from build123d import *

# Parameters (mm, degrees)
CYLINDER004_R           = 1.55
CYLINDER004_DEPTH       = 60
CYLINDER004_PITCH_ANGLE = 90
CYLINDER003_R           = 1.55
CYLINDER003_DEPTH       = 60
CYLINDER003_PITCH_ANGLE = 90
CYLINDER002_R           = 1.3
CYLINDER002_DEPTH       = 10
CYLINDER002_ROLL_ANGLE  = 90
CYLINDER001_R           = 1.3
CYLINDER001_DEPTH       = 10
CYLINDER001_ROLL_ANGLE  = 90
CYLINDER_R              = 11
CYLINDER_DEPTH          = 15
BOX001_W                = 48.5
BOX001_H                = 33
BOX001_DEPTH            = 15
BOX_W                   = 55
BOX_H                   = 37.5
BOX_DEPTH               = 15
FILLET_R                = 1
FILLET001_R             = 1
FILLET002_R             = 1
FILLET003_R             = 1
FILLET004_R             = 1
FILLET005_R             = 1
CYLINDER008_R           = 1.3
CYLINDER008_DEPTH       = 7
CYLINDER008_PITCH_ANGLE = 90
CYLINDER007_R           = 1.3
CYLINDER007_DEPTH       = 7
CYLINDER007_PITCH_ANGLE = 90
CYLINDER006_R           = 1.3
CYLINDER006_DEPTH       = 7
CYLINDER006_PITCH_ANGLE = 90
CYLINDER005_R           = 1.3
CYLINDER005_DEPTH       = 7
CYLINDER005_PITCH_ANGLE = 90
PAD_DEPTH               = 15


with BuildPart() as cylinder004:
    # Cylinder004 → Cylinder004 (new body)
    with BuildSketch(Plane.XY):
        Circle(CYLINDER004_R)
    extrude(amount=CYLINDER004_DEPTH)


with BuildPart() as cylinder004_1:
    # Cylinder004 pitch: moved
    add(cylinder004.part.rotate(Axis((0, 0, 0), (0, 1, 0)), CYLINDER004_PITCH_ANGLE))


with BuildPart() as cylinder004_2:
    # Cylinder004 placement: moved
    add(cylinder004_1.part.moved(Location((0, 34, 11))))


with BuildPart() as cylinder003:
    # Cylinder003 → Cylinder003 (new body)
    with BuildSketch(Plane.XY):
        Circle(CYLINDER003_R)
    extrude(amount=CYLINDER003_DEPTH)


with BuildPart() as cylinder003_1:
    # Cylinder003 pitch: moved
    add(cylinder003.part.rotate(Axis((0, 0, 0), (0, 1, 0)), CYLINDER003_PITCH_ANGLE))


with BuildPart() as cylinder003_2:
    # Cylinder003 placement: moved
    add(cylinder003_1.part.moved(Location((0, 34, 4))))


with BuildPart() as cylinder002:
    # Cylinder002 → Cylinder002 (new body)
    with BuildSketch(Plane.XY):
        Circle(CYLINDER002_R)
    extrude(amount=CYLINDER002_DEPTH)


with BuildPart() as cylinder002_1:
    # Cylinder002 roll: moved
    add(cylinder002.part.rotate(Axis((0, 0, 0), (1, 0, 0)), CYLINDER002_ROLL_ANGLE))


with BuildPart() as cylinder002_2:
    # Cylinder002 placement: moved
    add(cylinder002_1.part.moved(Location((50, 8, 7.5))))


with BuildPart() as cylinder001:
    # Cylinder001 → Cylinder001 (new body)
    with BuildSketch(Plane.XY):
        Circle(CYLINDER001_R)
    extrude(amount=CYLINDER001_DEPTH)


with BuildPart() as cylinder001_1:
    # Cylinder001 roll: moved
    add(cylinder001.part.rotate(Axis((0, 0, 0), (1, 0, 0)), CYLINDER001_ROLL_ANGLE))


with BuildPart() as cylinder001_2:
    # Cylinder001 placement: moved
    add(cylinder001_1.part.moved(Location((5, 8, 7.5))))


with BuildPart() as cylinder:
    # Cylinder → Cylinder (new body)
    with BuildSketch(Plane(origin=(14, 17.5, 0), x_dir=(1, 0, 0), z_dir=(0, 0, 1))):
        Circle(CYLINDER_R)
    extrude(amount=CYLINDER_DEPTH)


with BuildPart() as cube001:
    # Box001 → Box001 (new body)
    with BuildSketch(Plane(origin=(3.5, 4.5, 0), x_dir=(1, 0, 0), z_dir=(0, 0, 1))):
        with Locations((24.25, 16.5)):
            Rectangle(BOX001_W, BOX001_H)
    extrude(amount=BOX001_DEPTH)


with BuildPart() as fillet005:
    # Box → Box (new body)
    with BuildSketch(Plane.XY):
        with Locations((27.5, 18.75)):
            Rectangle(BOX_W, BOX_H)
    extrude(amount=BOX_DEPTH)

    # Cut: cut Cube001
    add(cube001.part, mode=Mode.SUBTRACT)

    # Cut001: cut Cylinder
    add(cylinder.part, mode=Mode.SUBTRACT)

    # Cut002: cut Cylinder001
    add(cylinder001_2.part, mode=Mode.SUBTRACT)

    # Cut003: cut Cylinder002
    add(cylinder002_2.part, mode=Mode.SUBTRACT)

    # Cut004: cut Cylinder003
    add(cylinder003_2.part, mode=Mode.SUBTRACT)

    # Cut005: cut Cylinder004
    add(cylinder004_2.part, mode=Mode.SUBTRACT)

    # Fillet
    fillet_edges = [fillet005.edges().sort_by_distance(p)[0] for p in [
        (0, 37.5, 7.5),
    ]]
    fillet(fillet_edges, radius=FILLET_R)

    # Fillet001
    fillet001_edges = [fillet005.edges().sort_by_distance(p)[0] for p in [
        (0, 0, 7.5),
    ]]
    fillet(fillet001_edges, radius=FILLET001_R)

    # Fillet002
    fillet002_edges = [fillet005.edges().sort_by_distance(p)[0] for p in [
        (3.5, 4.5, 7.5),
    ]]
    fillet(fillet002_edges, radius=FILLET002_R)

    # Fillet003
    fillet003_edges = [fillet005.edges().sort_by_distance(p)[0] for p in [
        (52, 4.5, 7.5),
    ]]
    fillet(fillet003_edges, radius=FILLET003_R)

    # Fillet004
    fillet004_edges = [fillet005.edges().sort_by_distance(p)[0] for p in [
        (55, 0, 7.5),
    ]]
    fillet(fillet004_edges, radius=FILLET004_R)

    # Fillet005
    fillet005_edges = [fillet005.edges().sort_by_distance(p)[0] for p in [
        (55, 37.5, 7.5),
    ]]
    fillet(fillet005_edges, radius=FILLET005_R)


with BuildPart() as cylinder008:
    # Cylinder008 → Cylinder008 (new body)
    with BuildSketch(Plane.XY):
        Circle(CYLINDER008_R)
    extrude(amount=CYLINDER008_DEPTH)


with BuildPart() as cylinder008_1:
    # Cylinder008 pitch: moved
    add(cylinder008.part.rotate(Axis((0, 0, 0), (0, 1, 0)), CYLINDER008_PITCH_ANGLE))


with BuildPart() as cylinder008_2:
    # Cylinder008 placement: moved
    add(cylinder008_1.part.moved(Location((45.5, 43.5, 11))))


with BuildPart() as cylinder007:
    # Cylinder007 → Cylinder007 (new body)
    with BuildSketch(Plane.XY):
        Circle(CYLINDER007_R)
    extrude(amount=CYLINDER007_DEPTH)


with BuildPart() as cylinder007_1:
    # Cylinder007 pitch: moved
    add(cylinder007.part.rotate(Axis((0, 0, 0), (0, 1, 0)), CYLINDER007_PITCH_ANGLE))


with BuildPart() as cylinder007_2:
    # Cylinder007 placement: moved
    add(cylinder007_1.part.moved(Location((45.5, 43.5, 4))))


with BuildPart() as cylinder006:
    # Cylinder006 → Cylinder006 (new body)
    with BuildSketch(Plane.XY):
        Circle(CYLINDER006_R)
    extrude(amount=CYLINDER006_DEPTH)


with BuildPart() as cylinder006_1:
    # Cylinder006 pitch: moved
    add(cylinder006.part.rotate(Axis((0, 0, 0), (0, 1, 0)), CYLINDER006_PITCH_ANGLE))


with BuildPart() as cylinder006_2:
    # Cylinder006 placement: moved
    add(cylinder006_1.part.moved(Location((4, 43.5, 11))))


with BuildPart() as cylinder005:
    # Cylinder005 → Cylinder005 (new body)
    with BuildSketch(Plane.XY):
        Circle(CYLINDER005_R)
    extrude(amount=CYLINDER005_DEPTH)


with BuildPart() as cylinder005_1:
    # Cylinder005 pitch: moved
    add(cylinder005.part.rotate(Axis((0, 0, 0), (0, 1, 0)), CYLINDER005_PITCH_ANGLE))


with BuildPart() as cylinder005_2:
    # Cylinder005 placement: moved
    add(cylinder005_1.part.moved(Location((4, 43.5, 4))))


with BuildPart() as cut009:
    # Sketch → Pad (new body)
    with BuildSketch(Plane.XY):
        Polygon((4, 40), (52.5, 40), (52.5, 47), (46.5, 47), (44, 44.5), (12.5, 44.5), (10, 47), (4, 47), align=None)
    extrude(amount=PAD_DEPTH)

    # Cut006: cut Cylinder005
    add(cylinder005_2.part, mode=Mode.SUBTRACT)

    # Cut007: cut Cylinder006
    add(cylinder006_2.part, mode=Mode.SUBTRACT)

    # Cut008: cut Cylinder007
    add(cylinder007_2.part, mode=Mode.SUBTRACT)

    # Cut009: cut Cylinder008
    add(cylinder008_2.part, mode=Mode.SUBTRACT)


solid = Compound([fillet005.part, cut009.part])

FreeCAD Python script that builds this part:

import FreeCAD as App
import Part
import Sketcher
Q = App.Units.Quantity


def edges_at(feature, points):
    """Names of the edges that pass closest to the given points."""
    edges = feature.Shape.Edges
    near = lambda p: min(range(len(edges)), key=lambda i: edges[i].distToShape(Part.Vertex(*p))[0])
    return sorted({f"Edge{near(p) + 1}" for p in points})


def add_polygon(sketch, points):
    """Adds a closed chain of lines whose ends are joined by coincident constraints."""
    first, n = sketch.GeometryCount, len(points)
    for a, b in zip(points, points[1:] + points[:1]):
        sketch.addGeometry(Part.LineSegment(App.Vector(*a, 0), App.Vector(*b, 0)), False)
    for i in range(n):
        sketch.addConstraint(Sketcher.Constraint("Coincident", first + i, 2, first + (i + 1) % n, 1))

doc = App.newDocument("Part")
body = doc.addObject("PartDesign::Body", "Body")

# Sketch on XY plane
sketch1 = doc.addObject("Sketcher::SketchObject", "Sketch")
body.addObject(sketch1)
sketch1.AttachmentSupport = (doc.XY_Plane, [""])
sketch1.MapMode = "FlatFace"
sketch1.addGeometry(Part.Circle(App.Vector(0, 0, 0), App.Vector(0, 0, 1), 1.55), False)
sketch1.addConstraint([
    Sketcher.Constraint("Coincident", 0, 3, -1, 1),
    Sketcher.Constraint("Diameter", 0, Q("3.1 mm")),
])
pad1 = doc.addObject("PartDesign::Pad", "Pad")
body.addObject(pad1)
pad1.Profile = sketch1
pad1.Length = 60
body2 = doc.addObject("PartDesign::Body", "Body001")
doc.recompute()

body.Placement = App.Placement(App.Vector(0, 0, 0), App.Rotation(App.Vector(0, 1, 0), 90))
boolean = doc.addObject("PartDesign::Boolean", "Boolean")
body2.addObject(boolean)
boolean.Type = "Fuse"
boolean.addObjects([body])
body3 = doc.addObject("PartDesign::Body", "Body002")
doc.recompute()

body2.Placement = App.Placement(App.Vector(0, 34, 11), App.Rotation(App.Vector(0, 0, 1), 0))
boolean2 = doc.addObject("PartDesign::Boolean", "Boolean001")
body3.addObject(boolean2)
boolean2.Type = "Fuse"
boolean2.addObjects([body2])
body4 = doc.addObject("PartDesign::Body", "Body003")

# Sketch on XY plane
sketch2 = doc.addObject("Sketcher::SketchObject", "Sketch001")
body4.addObject(sketch2)
sketch2.AttachmentSupport = (doc.getObject("XY_Plane003"), [""])
sketch2.MapMode = "FlatFace"
sketch2.addGeometry(Part.Circle(App.Vector(0, 0, 0), App.Vector(0, 0, 1), 1.55), False)
sketch2.addConstraint([
    Sketcher.Constraint("Coincident", 0, 3, -1, 1),
    Sketcher.Constraint("Diameter", 0, Q("3.1 mm")),
])
pad2 = doc.addObject("PartDesign::Pad", "Pad001")
body4.addObject(pad2)
pad2.Profile = sketch2
pad2.Length = 60
body5 = doc.addObject("PartDesign::Body", "Body004")
doc.recompute()

body4.Placement = App.Placement(App.Vector(0, 0, 0), App.Rotation(App.Vector(0, 1, 0), 90))
boolean3 = doc.addObject("PartDesign::Boolean", "Boolean002")
body5.addObject(boolean3)
boolean3.Type = "Fuse"
boolean3.addObjects([body4])
body6 = doc.addObject("PartDesign::Body", "Body005")
doc.recompute()

body5.Placement = App.Placement(App.Vector(0, 34, 4), App.Rotation(App.Vector(0, 0, 1), 0))
boolean4 = doc.addObject("PartDesign::Boolean", "Boolean003")
body6.addObject(boolean4)
boolean4.Type = "Fuse"
boolean4.addObjects([body5])
body7 = doc.addObject("PartDesign::Body", "Body006")

# Sketch on XY plane
sketch3 = doc.addObject("Sketcher::SketchObject", "Sketch002")
body7.addObject(sketch3)
sketch3.AttachmentSupport = (doc.getObject("XY_Plane006"), [""])
sketch3.MapMode = "FlatFace"
sketch3.addGeometry(Part.Circle(App.Vector(0, 0, 0), App.Vector(0, 0, 1), 1.3), False)
sketch3.addConstraint([
    Sketcher.Constraint("Coincident", 0, 3, -1, 1),
    Sketcher.Constraint("Diameter", 0, Q("2.6 mm")),
])
pad3 = doc.addObject("PartDesign::Pad", "Pad002")
body7.addObject(pad3)
pad3.Profile = sketch3
pad3.Length = 10
body8 = doc.addObject("PartDesign::Body", "Body007")
doc.recompute()

body7.Placement = App.Placement(App.Vector(0, 0, 0), App.Rotation(App.Vector(1, 0, 0), 90))
boolean5 = doc.addObject("PartDesign::Boolean", "Boolean004")
body8.addObject(boolean5)
boolean5.Type = "Fuse"
boolean5.addObjects([body7])
body9 = doc.addObject("PartDesign::Body", "Body008")
doc.recompute()

body8.Placement = App.Placement(App.Vector(50, 8, 7.5), App.Rotation(App.Vector(0, 0, 1), 0))
boolean6 = doc.addObject("PartDesign::Boolean", "Boolean005")
body9.addObject(boolean6)
boolean6.Type = "Fuse"
boolean6.addObjects([body8])
body10 = doc.addObject("PartDesign::Body", "Body009")

# Sketch on XY plane
sketch4 = doc.addObject("Sketcher::SketchObject", "Sketch003")
body10.addObject(sketch4)
sketch4.AttachmentSupport = (doc.getObject("XY_Plane009"), [""])
sketch4.MapMode = "FlatFace"
sketch4.addGeometry(Part.Circle(App.Vector(0, 0, 0), App.Vector(0, 0, 1), 1.3), False)
sketch4.addConstraint([
    Sketcher.Constraint("Coincident", 0, 3, -1, 1),
    Sketcher.Constraint("Diameter", 0, Q("2.6 mm")),
])
pad4 = doc.addObject("PartDesign::Pad", "Pad003")
body10.addObject(pad4)
pad4.Profile = sketch4
pad4.Length = 10
body11 = doc.addObject("PartDesign::Body", "Body010")
doc.recompute()

body10.Placement = App.Placement(App.Vector(0, 0, 0), App.Rotation(App.Vector(1, 0, 0), 90))
boolean7 = doc.addObject("PartDesign::Boolean", "Boolean006")
body11.addObject(boolean7)
boolean7.Type = "Fuse"
boolean7.addObjects([body10])
body12 = doc.addObject("PartDesign::Body", "Body011")
doc.recompute()

body11.Placement = App.Placement(App.Vector(5, 8, 7.5), App.Rotation(App.Vector(0, 0, 1), 0))
boolean8 = doc.addObject("PartDesign::Boolean", "Boolean007")
body12.addObject(boolean8)
boolean8.Type = "Fuse"
boolean8.addObjects([body11])
body13 = doc.addObject("PartDesign::Body", "Body012")

# Sketch on XY plane
sketch5 = doc.addObject("Sketcher::SketchObject", "Sketch004")
body13.addObject(sketch5)
sketch5.AttachmentSupport = (doc.getObject("XY_Plane012"), [""])
sketch5.MapMode = "FlatFace"
sketch5.addGeometry(Part.Circle(App.Vector(14, 17.5, 0), App.Vector(0, 0, 1), 11), False)
sketch5.addConstraint([
    Sketcher.Constraint("Diameter", 0, Q("22 mm")),
    Sketcher.Constraint("DistanceX", -1, 1, 0, 3, Q("14 mm")),
    Sketcher.Constraint("DistanceY", -1, 1, 0, 3, Q("17.5 mm")),
])
pad5 = doc.addObject("PartDesign::Pad", "Pad004")
body13.addObject(pad5)
pad5.Profile = sketch5
pad5.Length = 15
body14 = doc.addObject("PartDesign::Body", "Body013")

# Sketch on XY plane
sketch6 = doc.addObject("Sketcher::SketchObject", "Sketch005")
body14.addObject(sketch6)
sketch6.AttachmentSupport = (doc.getObject("XY_Plane013"), [""])
sketch6.MapMode = "FlatFace"
add_polygon(sketch6, [(3.5, 37.5), (3.5, 4.5), (52, 4.5), (52, 37.5)])  # lines 0-3
sketch6.addConstraint([
    Sketcher.Constraint("Vertical", 0),
    Sketcher.Constraint("Horizontal", 1),
    Sketcher.Constraint("Vertical", 2),
    Sketcher.Constraint("Horizontal", 3),
    Sketcher.Constraint("DistanceY", 0, 2, 0, 1, Q("33 mm")),
    Sketcher.Constraint("DistanceX", 1, 1, 1, 2, Q("48.5 mm")),
    Sketcher.Constraint("DistanceX", -1, 1, 1, 2, Q("52 mm")),
    Sketcher.Constraint("DistanceY", -1, 1, 0, 2, Q("4.5 mm")),
])
pad6 = doc.addObject("PartDesign::Pad", "Pad005")
body14.addObject(pad6)
pad6.Profile = sketch6
pad6.Length = 15
body15 = doc.addObject("PartDesign::Body", "Body014")

# Sketch on XY plane
sketch7 = doc.addObject("Sketcher::SketchObject", "Sketch006")
body15.addObject(sketch7)
sketch7.AttachmentSupport = (doc.getObject("XY_Plane014"), [""])
sketch7.MapMode = "FlatFace"
add_polygon(sketch7, [(0, 37.5), (0, 0), (55, 0), (55, 37.5)])  # lines 0-3
sketch7.addConstraint([
    Sketcher.Constraint("Vertical", 0),
    Sketcher.Constraint("Horizontal", 1),
    Sketcher.Constraint("Vertical", 2),
    Sketcher.Constraint("Horizontal", 3),
    Sketcher.Constraint("Coincident", 0, 2, -1, 1),
    Sketcher.Constraint("DistanceX", 1, 1, 1, 2, Q("55 mm")),
    Sketcher.Constraint("DistanceY", 0, 2, 0, 1, Q("37.5 mm")),
])
pad7 = doc.addObject("PartDesign::Pad", "Pad006")
body15.addObject(pad7)
pad7.Profile = sketch7
pad7.Length = 15
doc.recompute()

boolean9 = doc.addObject("PartDesign::Boolean", "Boolean008")
body15.addObject(boolean9)
boolean9.Type = "Cut"
boolean9.addObjects([body14])
doc.recompute()

boolean10 = doc.addObject("PartDesign::Boolean", "Boolean009")
body15.addObject(boolean10)
boolean10.Type = "Cut"
boolean10.addObjects([body13])
doc.recompute()

boolean11 = doc.addObject("PartDesign::Boolean", "Boolean010")
body15.addObject(boolean11)
boolean11.Type = "Cut"
boolean11.addObjects([body12])
doc.recompute()

boolean12 = doc.addObject("PartDesign::Boolean", "Boolean011")
body15.addObject(boolean12)
boolean12.Type = "Cut"
boolean12.addObjects([body9])
doc.recompute()

boolean13 = doc.addObject("PartDesign::Boolean", "Boolean012")
body15.addObject(boolean13)
boolean13.Type = "Cut"
boolean13.addObjects([body6])
doc.recompute()

boolean14 = doc.addObject("PartDesign::Boolean", "Boolean013")
body15.addObject(boolean14)
boolean14.Type = "Cut"
boolean14.addObjects([body3])
doc.recompute()

fillet = doc.addObject("PartDesign::Fillet", "Fillet")
body15.addObject(fillet)
fillet.Base = (boolean14, edges_at(boolean14, [(0, 37.5, 7.5)]))
fillet.Radius = 1
doc.recompute()

fillet2 = doc.addObject("PartDesign::Fillet", "Fillet001")
body15.addObject(fillet2)
fillet2.Base = (fillet, edges_at(fillet, [(0, 0, 7.5)]))
fillet2.Radius = 1
doc.recompute()

fillet3 = doc.addObject("PartDesign::Fillet", "Fillet002")
body15.addObject(fillet3)
fillet3.Base = (fillet2, edges_at(fillet2, [(3.5, 4.5, 7.5)]))
fillet3.Radius = 1
doc.recompute()

fillet4 = doc.addObject("PartDesign::Fillet", "Fillet003")
body15.addObject(fillet4)
fillet4.Base = (fillet3, edges_at(fillet3, [(52, 4.5, 7.5)]))
fillet4.Radius = 1
doc.recompute()

fillet5 = doc.addObject("PartDesign::Fillet", "Fillet004")
body15.addObject(fillet5)
fillet5.Base = (fillet4, edges_at(fillet4, [(55, 0, 7.5)]))
fillet5.Radius = 1
doc.recompute()

fillet6 = doc.addObject("PartDesign::Fillet", "Fillet005")
body15.addObject(fillet6)
fillet6.Base = (fillet5, edges_at(fillet5, [(55, 37.5, 7.5)]))
fillet6.Radius = 1
body16 = doc.addObject("PartDesign::Body", "Body015")

# Sketch on XY plane
sketch8 = doc.addObject("Sketcher::SketchObject", "Sketch007")
body16.addObject(sketch8)
sketch8.AttachmentSupport = (doc.getObject("XY_Plane015"), [""])
sketch8.MapMode = "FlatFace"
sketch8.addGeometry(Part.Circle(App.Vector(0, 0, 0), App.Vector(0, 0, 1), 1.3), False)
sketch8.addConstraint([
    Sketcher.Constraint("Coincident", 0, 3, -1, 1),
    Sketcher.Constraint("Diameter", 0, Q("2.6 mm")),
])
pad8 = doc.addObject("PartDesign::Pad", "Pad007")
body16.addObject(pad8)
pad8.Profile = sketch8
pad8.Length = 7
body17 = doc.addObject("PartDesign::Body", "Body016")
doc.recompute()

body16.Placement = App.Placement(App.Vector(0, 0, 0), App.Rotation(App.Vector(0, 1, 0), 90))
boolean15 = doc.addObject("PartDesign::Boolean", "Boolean014")
body17.addObject(boolean15)
boolean15.Type = "Fuse"
boolean15.addObjects([body16])
body18 = doc.addObject("PartDesign::Body", "Body017")
doc.recompute()

body17.Placement = App.Placement(App.Vector(45.5, 43.5, 11), App.Rotation(App.Vector(0, 0, 1), 0))
boolean16 = doc.addObject("PartDesign::Boolean", "Boolean015")
body18.addObject(boolean16)
boolean16.Type = "Fuse"
boolean16.addObjects([body17])
body19 = doc.addObject("PartDesign::Body", "Body018")

# Sketch on XY plane
sketch9 = doc.addObject("Sketcher::SketchObject", "Sketch008")
body19.addObject(sketch9)
sketch9.AttachmentSupport = (doc.getObject("XY_Plane018"), [""])
sketch9.MapMode = "FlatFace"
sketch9.addGeometry(Part.Circle(App.Vector(0, 0, 0), App.Vector(0, 0, 1), 1.3), False)
sketch9.addConstraint([
    Sketcher.Constraint("Coincident", 0, 3, -1, 1),
    Sketcher.Constraint("Diameter", 0, Q("2.6 mm")),
])
pad9 = doc.addObject("PartDesign::Pad", "Pad008")
body19.addObject(pad9)
pad9.Profile = sketch9
pad9.Length = 7
body20 = doc.addObject("PartDesign::Body", "Body019")
doc.recompute()

body19.Placement = App.Placement(App.Vector(0, 0, 0), App.Rotation(App.Vector(0, 1, 0), 90))
boolean17 = doc.addObject("PartDesign::Boolean", "Boolean016")
body20.addObject(boolean17)
boolean17.Type = "Fuse"
boolean17.addObjects([body19])
body21 = doc.addObject("PartDesign::Body", "Body020")
doc.recompute()

body20.Placement = App.Placement(App.Vector(45.5, 43.5, 4), App.Rotation(App.Vector(0, 0, 1), 0))
boolean18 = doc.addObject("PartDesign::Boolean", "Boolean017")
body21.addObject(boolean18)
boolean18.Type = "Fuse"
boolean18.addObjects([body20])
body22 = doc.addObject("PartDesign::Body", "Body021")

# Sketch on XY plane
sketch10 = doc.addObject("Sketcher::SketchObject", "Sketch009")
body22.addObject(sketch10)
sketch10.AttachmentSupport = (doc.getObject("XY_Plane021"), [""])
sketch10.MapMode = "FlatFace"
sketch10.addGeometry(Part.Circle(App.Vector(0, 0, 0), App.Vector(0, 0, 1), 1.3), False)
sketch10.addConstraint([
    Sketcher.Constraint("Coincident", 0, 3, -1, 1),
    Sketcher.Constraint("Diameter", 0, Q("2.6 mm")),
])
pad10 = doc.addObject("PartDesign::Pad", "Pad009")
body22.addObject(pad10)
pad10.Profile = sketch10
pad10.Length = 7
body23 = doc.addObject("PartDesign::Body", "Body022")
doc.recompute()

body22.Placement = App.Placement(App.Vector(0, 0, 0), App.Rotation(App.Vector(0, 1, 0), 90))
boolean19 = doc.addObject("PartDesign::Boolean", "Boolean018")
body23.addObject(boolean19)
boolean19.Type = "Fuse"
boolean19.addObjects([body22])
body24 = doc.addObject("PartDesign::Body", "Body023")
doc.recompute()

body23.Placement = App.Placement(App.Vector(4, 43.5, 11), App.Rotation(App.Vector(0, 0, 1), 0))
boolean20 = doc.addObject("PartDesign::Boolean", "Boolean019")
body24.addObject(boolean20)
boolean20.Type = "Fuse"
boolean20.addObjects([body23])
body25 = doc.addObject("PartDesign::Body", "Body024")

# Sketch on XY plane
sketch11 = doc.addObject("Sketcher::SketchObject", "Sketch010")
body25.addObject(sketch11)
sketch11.AttachmentSupport = (doc.getObject("XY_Plane024"), [""])
sketch11.MapMode = "FlatFace"
sketch11.addGeometry(Part.Circle(App.Vector(0, 0, 0), App.Vector(0, 0, 1), 1.3), False)
sketch11.addConstraint([
    Sketcher.Constraint("Coincident", 0, 3, -1, 1),
    Sketcher.Constraint("Diameter", 0, Q("2.6 mm")),
])
pad11 = doc.addObject("PartDesign::Pad", "Pad010")
body25.addObject(pad11)
pad11.Profile = sketch11
pad11.Length = 7
body26 = doc.addObject("PartDesign::Body", "Body025")
doc.recompute()

body25.Placement = App.Placement(App.Vector(0, 0, 0), App.Rotation(App.Vector(0, 1, 0), 90))
boolean21 = doc.addObject("PartDesign::Boolean", "Boolean020")
body26.addObject(boolean21)
boolean21.Type = "Fuse"
boolean21.addObjects([body25])
body27 = doc.addObject("PartDesign::Body", "Body026")
doc.recompute()

body26.Placement = App.Placement(App.Vector(4, 43.5, 4), App.Rotation(App.Vector(0, 0, 1), 0))
boolean22 = doc.addObject("PartDesign::Boolean", "Boolean021")
body27.addObject(boolean22)
boolean22.Type = "Fuse"
boolean22.addObjects([body26])
body28 = doc.addObject("PartDesign::Body", "Body027")

# Sketch on XY plane
sketch12 = doc.addObject("Sketcher::SketchObject", "Sketch011")
body28.addObject(sketch12)
sketch12.AttachmentSupport = (doc.getObject("XY_Plane027"), [""])
sketch12.MapMode = "FlatFace"
add_polygon(sketch12, [(4, 40), (52.5, 40), (52.5, 47), (46.5, 47), (44, 44.5), (12.5, 44.5), (10, 47), (4, 47)])  # lines 0-7
sketch12.addConstraint([
    Sketcher.Constraint("Horizontal", 0),
    Sketcher.Constraint("Vertical", 1),
    Sketcher.Constraint("Horizontal", 2),
    Sketcher.Constraint("Horizontal", 4),
    Sketcher.Constraint("Horizontal", 6),
    Sketcher.Constraint("Vertical", 7),
    Sketcher.Constraint("Perpendicular", 3, 5),
    Sketcher.Constraint("Horizontal", 2, 2, 5, 2),
    Sketcher.Constraint("Equal", 2, 6),
    Sketcher.Constraint("Equal", 3, 5),
    Sketcher.Constraint("DistanceX", 2, 2, 2, 1, Q("6 mm")),
    Sketcher.Constraint("DistanceY", 1, 1, 1, 2, Q("7 mm")),
    Sketcher.Constraint("DistanceX", 0, 1, 0, 2, Q("48.5 mm")),
    Sketcher.Constraint("DistanceX", 4, 2, 4, 1, Q("31.5 mm")),
    Sketcher.Constraint("DistanceY", -1, 1, 0, 2, Q("40 mm")),
    Sketcher.Constraint("DistanceX", -1, 1, 3, 2, Q("44 mm")),
])
pad12 = doc.addObject("PartDesign::Pad", "Pad011")
body28.addObject(pad12)
pad12.Profile = sketch12
pad12.Length = 15
doc.recompute()

boolean23 = doc.addObject("PartDesign::Boolean", "Boolean022")
body28.addObject(boolean23)
boolean23.Type = "Cut"
boolean23.addObjects([body27])
doc.recompute()

boolean24 = doc.addObject("PartDesign::Boolean", "Boolean023")
body28.addObject(boolean24)
boolean24.Type = "Cut"
boolean24.addObjects([body24])
doc.recompute()

boolean25 = doc.addObject("PartDesign::Boolean", "Boolean024")
body28.addObject(boolean25)
boolean25.Type = "Cut"
boolean25.addObjects([body21])
doc.recompute()

boolean26 = doc.addObject("PartDesign::Boolean", "Boolean025")
body28.addObject(boolean26)
boolean26.Type = "Cut"
boolean26.addObjects([body18])

doc.recompute()
